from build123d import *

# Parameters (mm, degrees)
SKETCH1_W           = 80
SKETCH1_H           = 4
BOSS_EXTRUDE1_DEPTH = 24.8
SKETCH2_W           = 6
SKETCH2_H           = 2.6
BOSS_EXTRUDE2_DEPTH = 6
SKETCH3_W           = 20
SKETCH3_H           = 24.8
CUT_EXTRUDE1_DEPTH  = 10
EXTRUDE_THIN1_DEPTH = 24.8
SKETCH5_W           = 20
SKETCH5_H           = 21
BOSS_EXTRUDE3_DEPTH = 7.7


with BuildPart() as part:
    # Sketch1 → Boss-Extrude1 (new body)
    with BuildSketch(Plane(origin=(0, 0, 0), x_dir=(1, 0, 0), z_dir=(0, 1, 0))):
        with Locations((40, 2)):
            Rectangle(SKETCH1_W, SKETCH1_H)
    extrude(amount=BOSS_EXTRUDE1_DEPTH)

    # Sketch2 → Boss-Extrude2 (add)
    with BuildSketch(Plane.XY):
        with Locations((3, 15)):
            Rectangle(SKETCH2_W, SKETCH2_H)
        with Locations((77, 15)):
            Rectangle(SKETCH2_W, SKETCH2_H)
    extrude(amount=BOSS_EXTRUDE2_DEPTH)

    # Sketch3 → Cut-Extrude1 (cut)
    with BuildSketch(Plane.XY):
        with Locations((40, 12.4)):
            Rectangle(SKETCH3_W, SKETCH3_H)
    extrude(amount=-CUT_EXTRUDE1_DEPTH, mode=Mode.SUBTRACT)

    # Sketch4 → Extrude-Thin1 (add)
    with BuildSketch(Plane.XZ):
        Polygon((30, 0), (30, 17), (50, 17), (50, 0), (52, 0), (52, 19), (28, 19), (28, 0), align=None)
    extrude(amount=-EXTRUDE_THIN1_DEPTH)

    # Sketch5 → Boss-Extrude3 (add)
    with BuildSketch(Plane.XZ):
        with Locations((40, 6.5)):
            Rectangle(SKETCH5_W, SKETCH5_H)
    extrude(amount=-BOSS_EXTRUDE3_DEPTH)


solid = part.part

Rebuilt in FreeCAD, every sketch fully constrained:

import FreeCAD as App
import Part
import Sketcher

V = App.Vector
Q = App.Units.Quantity

doc = App.newDocument("Part")
params = doc.addObject("Spreadsheet::Sheet", "Params")
for row, (alias, value) in enumerate([
    ("sketch1_width", "80 mm"),
    ("sketch1_height", "4 mm"),
    ("pad1_length", "24.8 mm"),
    ("sketch2_width", "6 mm"),
    ("sketch2_height", "2.6 mm"),
    ("pad2_length", "6 mm"),
    ("sketch3_width", "20 mm"),
    ("sketch3_height", "24.8 mm"),
    ("pocket1_length", "10 mm"),
    ("sketch4_width", "20 mm"),
    ("sketch4_width2", "2 mm"),
    ("sketch4_height", "17 mm"),
    ("sketch4_height2", "19 mm"),
    ("pad3_length", "24.8 mm"),
    ("sketch5_width", "20 mm"),
    ("sketch5_height", "21 mm"),
    ("pad4_length", "7.7 mm"),
], start=1):
    params.set(f"A{row}", alias)
    params.set(f"B{row}", "=" + value)
    params.setAlias(f"B{row}", alias)

body = doc.addObject("PartDesign::Body", "Body")
body.AllowCompound = True

# Sketch on XZ plane
sketch1 = doc.addObject("Sketcher::SketchObject", "Sketch")
body.addObject(sketch1)
sketch1.AttachmentSupport = (doc.XZ_Plane, [""])
sketch1.MapMode = "FlatFace"
sketch1.addGeometry([
    Part.LineSegment(V(0, -4, 0), V(0, 0, 0)),
    Part.LineSegment(V(0, 0, 0), V(80, 0, 0)),
    Part.LineSegment(V(80, 0, 0), V(80, -4, 0)),
    Part.LineSegment(V(80, -4, 0), V(0, -4, 0)),
], False)
sketch1.addConstraint([
    Sketcher.Constraint("Coincident", 0, 2, 1, 1),
    Sketcher.Constraint("Coincident", 1, 2, 2, 1),
    Sketcher.Constraint("Coincident", 2, 2, 3, 1),
    Sketcher.Constraint("Coincident", 3, 2, 0, 1),
    Sketcher.Constraint("Vertical", 0),
    Sketcher.Constraint("Horizontal", 1),
    Sketcher.Constraint("Vertical", 2),
    Sketcher.Constraint("Horizontal", 3),
    Sketcher.Constraint("Coincident", 0, 2, -1, 1),
    Sketcher.Constraint("DistanceX", 1, 1, 1, 2, Q("80 mm")),
    Sketcher.Constraint("DistanceY", 0, 1, 0, 2, Q("4 mm")),
])
sketch1.setExpression("Constraints[9]", "Params.sketch1_width")
sketch1.setExpression("Constraints[10]", "Params.sketch1_height")
pad1 = doc.addObject("PartDesign::Pad", "Pad")
body.addObject(pad1)
pad1.Profile = sketch1
pad1.setExpression("Length", "Params.pad1_length")
pad1.Reversed = True

# Sketch on XY plane
sketch2 = doc.addObject("Sketcher::SketchObject", "Sketch001")
body.addObject(sketch2)
sketch2.AttachmentSupport = (doc.XY_Plane, [""])
sketch2.MapMode = "FlatFace"
sketch2.addGeometry([
    Part.LineSegment(V(0, 16.3, 0), V(0, 13.7, 0)),  # 0
    Part.LineSegment(V(0, 13.7, 0), V(6, 13.7, 0)),  # 1
    Part.LineSegment(V(6, 13.7, 0), V(6, 16.3, 0)),  # 2
    Part.LineSegment(V(6, 16.3, 0), V(0, 16.3, 0)),  # 3
    Part.LineSegment(V(74, 16.3, 0), V(74, 13.7, 0)),  # 4
    Part.LineSegment(V(74, 13.7, 0), V(80, 13.7, 0)),  # 5
    Part.LineSegment(V(80, 13.7, 0), V(80, 16.3, 0)),  # 6
    Part.LineSegment(V(80, 16.3, 0), V(74, 16.3, 0)),  # 7
], False)
sketch2.addConstraint([
    Sketcher.Constraint("Coincident", 0, 2, 1, 1),
    Sketcher.Constraint("Coincident", 1, 2, 2, 1),
    Sketcher.Constraint("Coincident", 2, 2, 3, 1),
    Sketcher.Constraint("Coincident", 3, 2, 0, 1),
    Sketcher.Constraint("Coincident", 4, 2, 5, 1),
    Sketcher.Constraint("Coincident", 5, 2, 6, 1),
    Sketcher.Constraint("Coincident", 6, 2, 7, 1),
    Sketcher.Constraint("Coincident", 7, 2, 4, 1),
    Sketcher.Constraint("Vertical", 0),
    Sketcher.Constraint("Horizontal", 1),
    Sketcher.Constraint("Vertical", 2),
    Sketcher.Constraint("Horizontal", 3),
    Sketcher.Constraint("Vertical", 4),
    Sketcher.Constraint("Horizontal", 5),
    Sketcher.Constraint("Vertical", 6),
    Sketcher.Constraint("Horizontal", 7),
    Sketcher.Constraint("PointOnObject", 0, 2, -2),
    Sketcher.Constraint("Horizontal", 1, 2, 4, 2),
    Sketcher.Constraint("Horizontal", 3, 2, 6, 2),
    Sketcher.Constraint("Equal", 3, 5),
    Sketcher.Constraint("DistanceX", 1, 1, 1, 2, Q("6 mm")),
    Sketcher.Constraint("DistanceY", 0, 2, 0, 1, Q("2.6 mm")),
    Sketcher.Constraint("DistanceX", -1, 1, 4, 2, Q("74 mm")),
    Sketcher.Constraint("DistanceY", -1, 1, 0, 2, Q("13.7 mm")),
])
sketch2.setExpression("Constraints[20]", "Params.sketch2_width")
sketch2.setExpression("Constraints[21]", "Params.sketch2_height")
pad2 = doc.addObject("PartDesign::Pad", "Pad001")
body.addObject(pad2)
pad2.Profile = sketch2
pad2.setExpression("Length", "Params.pad2_length")

# Sketch on XY plane
sketch3 = doc.addObject("Sketcher::SketchObject", "Sketch002")
body.addObject(sketch3)
sketch3.AttachmentSupport = (doc.XY_Plane, [""])
sketch3.MapMode = "FlatFace"
sketch3.addGeometry([
    Part.LineSegment(V(30, 25, 0), V(30, 0, 0)),
    Part.LineSegment(V(30, 0, 0), V(50, 0, 0)),
    Part.LineSegment(V(50, 0, 0), V(50, 25, 0)),
    Part.LineSegment(V(50, 25, 0), V(30, 25, 0)),
], False)
sketch3.addConstraint([
    Sketcher.Constraint("Coincident", 0, 2, 1, 1),
    Sketcher.Constraint("Coincident", 1, 2, 2, 1),
    Sketcher.Constraint("Coincident", 2, 2, 3, 1),
    Sketcher.Constraint("Coincident", 3, 2, 0, 1),
    Sketcher.Constraint("Vertical", 0),
    Sketcher.Constraint("Horizontal", 1),
    Sketcher.Constraint("Vertical", 2),
    Sketcher.Constraint("Horizontal", 3),
    Sketcher.Constraint("PointOnObject", 0, 2, -1),
    Sketcher.Constraint("DistanceX", 1, 1, 1, 2, Q("20 mm")),
    Sketcher.Constraint("DistanceY", 0, 2, 0, 1, Q("24.8 mm")),
    Sketcher.Constraint("DistanceX", -1, 1, 0, 2, Q("30 mm")),
])
sketch3.setExpression("Constraints[9]", "Params.sketch3_width")
sketch3.setExpression("Constraints[10]", "Params.sketch3_height")
pocket1 = doc.addObject("PartDesign::Pocket", "Pocket")
body.addObject(pocket1)
pocket1.Profile = sketch3
pocket1.setExpression("Length", "Params.pocket1_length")

# Sketch on XZ plane
sketch4 = doc.addObject("Sketcher::SketchObject", "Sketch003")
body.addObject(sketch4)
sketch4.AttachmentSupport = (doc.XZ_Plane, [""])
sketch4.MapMode = "FlatFace"
sketch4.addGeometry([
    Part.LineSegment(V(30, 0, 0), V(30, 17, 0)),  # 0
    Part.LineSegment(V(30, 17, 0), V(50, 17, 0)),  # 1
    Part.LineSegment(V(50, 17, 0), V(50, 0, 0)),  # 2
    Part.LineSegment(V(50, 0, 0), V(52, 0, 0)),  # 3
    Part.LineSegment(V(52, 0, 0), V(52, 19, 0)),  # 4
    Part.LineSegment(V(52, 19, 0), V(28, 19, 0)),  # 5
    Part.LineSegment(V(28, 19, 0), V(28, 0, 0)),  # 6
    Part.LineSegment(V(28, 0, 0), V(30, 0, 0)),  # 7
], False)
sketch4.addConstraint([
    Sketcher.Constraint("Coincident", 0, 2, 1, 1),
    Sketcher.Constraint("Coincident", 1, 2, 2, 1),
    Sketcher.Constraint("Coincident", 2, 2, 3, 1),
    Sketcher.Constraint("Coincident", 3, 2, 4, 1),
    Sketcher.Constraint("Coincident", 4, 2, 5, 1),
    Sketcher.Constraint("Coincident", 5, 2, 6, 1),
    Sketcher.Constraint("Coincident", 6, 2, 7, 1),
    Sketcher.Constraint("Coincident", 7, 2, 0, 1),
    Sketcher.Constraint("Vertical", 0),
    Sketcher.Constraint("Horizontal", 1),
    Sketcher.Constraint("Vertical", 2),
    Sketcher.Constraint("Horizontal", 3),
    Sketcher.Constraint("Vertical", 4),
    Sketcher.Constraint("Horizontal", 5),
    Sketcher.Constraint("Vertical", 6),
    Sketcher.Constraint("Horizontal", 7),
    Sketcher.Constraint("PointOnObject", 2, 2, -1),
    Sketcher.Constraint("PointOnObject", 6, 2, -1),
    Sketcher.Constraint("Equal", 3, 7),
    Sketcher.Constraint("DistanceX", 1, 1, 1, 2, Q("20 mm")),
    Sketcher.Constraint("DistanceX", 3, 1, 3, 2, Q("2 mm")),
    Sketcher.Constraint("DistanceY", 0, 1, 0, 2, Q("17 mm")),
    Sketcher.Constraint("DistanceY", 4, 1, 4, 2, Q("19 mm")),
    Sketcher.Constraint("DistanceX", -1, 1, 0, 2, Q("30 mm")),
])
sketch4.setExpression("Constraints[19]", "Params.sketch4_width")
sketch4.setExpression("Constraints[20]", "Params.sketch4_width2")
sketch4.setExpression("Constraints[21]", "Params.sketch4_height")
sketch4.setExpression("Constraints[22]", "Params.sketch4_height2")
pad3 = doc.addObject("PartDesign::Pad", "Pad002")
body.addObject(pad3)
pad3.Profile = sketch4
pad3.setExpression("Length", "Params.pad3_length")
pad3.Reversed = True

# Sketch on XZ plane
sketch5 = doc.addObject("Sketcher::SketchObject", "Sketch004")
body.addObject(sketch5)
sketch5.AttachmentSupport = (doc.XZ_Plane, [""])
sketch5.MapMode = "FlatFace"
sketch5.addGeometry([
    Part.LineSegment(V(30, 17, 0), V(30, -4, 0)),
    Part.LineSegment(V(30, -4, 0), V(50, -4, 0)),
    Part.LineSegment(V(50, -4, 0), V(50, 17, 0)),
    Part.LineSegment(V(50, 17, 0), V(30, 17, 0)),
], False)
sketch5.addConstraint([
    Sketcher.Constraint("Coincident", 0, 2, 1, 1),
    Sketcher.Constraint("Coincident", 1, 2, 2, 1),
    Sketcher.Constraint("Coincident", 2, 2, 3, 1),
    Sketcher.Constraint("Coincident", 3, 2, 0, 1),
    Sketcher.Constraint("Vertical", 0),
    Sketcher.Constraint("Horizontal", 1),
    Sketcher.Constraint("Vertical", 2),
    Sketcher.Constraint("Horizontal", 3),
    Sketcher.Constraint("DistanceX", 1, 1, 1, 2, Q("20 mm")),
    Sketcher.Constraint("DistanceY", 0, 2, 0, 1, Q("21 mm")),
    Sketcher.Constraint("DistanceX", -1, 1, 0, 2, Q("30 mm")),
    Sketcher.Constraint("DistanceY", 0, 2, -1, 1, Q("4 mm")),
])
sketch5.setExpression("Constraints[8]", "Params.sketch5_width")
sketch5.setExpression("Constraints[9]", "Params.sketch5_height")
pad4 = doc.addObject("PartDesign::Pad", "Pad003")
body.addObject(pad4)
pad4.Profile = sketch5
pad4.setExpression("Length", "Params.pad4_length")
pad4.Reversed = True

doc.recompute()
